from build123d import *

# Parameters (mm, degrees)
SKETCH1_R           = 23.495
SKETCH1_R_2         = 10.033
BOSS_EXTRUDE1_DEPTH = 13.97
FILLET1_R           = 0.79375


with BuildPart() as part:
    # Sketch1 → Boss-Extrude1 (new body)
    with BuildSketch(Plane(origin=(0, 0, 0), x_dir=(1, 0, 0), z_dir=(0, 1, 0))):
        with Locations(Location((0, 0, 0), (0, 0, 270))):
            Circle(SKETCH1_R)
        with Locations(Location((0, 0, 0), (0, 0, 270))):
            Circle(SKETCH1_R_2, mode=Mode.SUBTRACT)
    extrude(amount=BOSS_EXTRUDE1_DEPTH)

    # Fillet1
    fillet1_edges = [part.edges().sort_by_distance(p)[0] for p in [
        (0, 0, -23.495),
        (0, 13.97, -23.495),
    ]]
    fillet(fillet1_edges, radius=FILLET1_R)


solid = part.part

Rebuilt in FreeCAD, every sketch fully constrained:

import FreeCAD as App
import Part
import Sketcher
from FreeCAD import Vector
Q = App.Units.Quantity


def edges_at(feature, points):
    """Names of the edges that pass closest to the given points."""
    edges = feature.Shape.Edges
    near = lambda p: min(range(len(edges)), key=lambda i: edges[i].distToShape(Part.Vertex(*p))[0])
    return sorted({f"Edge{near(p) + 1}" for p in points})

doc = App.newDocument("Part")
params = doc.addObject("Spreadsheet::Sheet", "Params")
for row, (alias, value) in enumerate([
    ("sketch1_diameter", "1.85 in"),
    ("sketch1_diameter2", "0.79 in"),
    ("pad1_length", "0.55 in"),
    ("fillet_radius", "0.03125 in"),
], start=1):
    params.set(f"A{row}", alias)
    params.set(f"B{row}", "=" + value)
    params.setAlias(f"B{row}", alias)

body = doc.addObject("PartDesign::Body", "Body")

# Sketch on XZ plane
sketch1 = body.newObject("Sketcher::SketchObject", "Sketch")
sketch1.AttachmentSupport = (doc.getObject("XZ_Plane"), [""])
sketch1.MapMode = "FlatFace"
sketch1.addGeometry([
    Part.Circle(Vector(0, 0, 0), Vector(0, 0, 1), 23),
    Part.Circle(Vector(0, 0, 0), Vector(0, 0, 1), 10),
], False)
sketch1.addConstraint([
    Sketcher.Constraint("Coincident", 0, 3, -1, 1),
    Sketcher.Constraint("Coincident", 1, 3, -1, 1),
    Sketcher.Constraint("Diameter", 0, Q("1.85 in")),
    Sketcher.Constraint("Diameter", 1, Q("0.79 in")),
])
sketch1.setExpression("Constraints[2]", "Params.sketch1_diameter")
sketch1.setExpression("Constraints[3]", "Params.sketch1_diameter2")
pad1 = body.newObject("PartDesign::Pad", "Pad")
pad1.Profile = sketch1
pad1.setExpression("Length", "Params.pad1_length")
pad1.Reversed = True
doc.recompute()

fillet = body.newObject("PartDesign::Fillet", "Fillet")
fillet.Base = (pad1, edges_at(pad1, [(0, 0, -23.495), (0, 13.97, -23.495)]))
fillet.setExpression("Radius", "Params.fillet_radius")

doc.recompute()
